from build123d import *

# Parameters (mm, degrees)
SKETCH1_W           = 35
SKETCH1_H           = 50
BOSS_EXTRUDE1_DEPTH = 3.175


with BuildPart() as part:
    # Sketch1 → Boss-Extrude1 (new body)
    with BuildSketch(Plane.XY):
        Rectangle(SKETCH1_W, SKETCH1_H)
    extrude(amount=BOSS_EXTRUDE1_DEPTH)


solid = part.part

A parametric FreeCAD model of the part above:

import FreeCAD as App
import Part
import Sketcher
from FreeCAD import Vector
Q = App.Units.Quantity

doc = App.newDocument("Part")
body = doc.addObject("PartDesign::Body", "Body")

# Sketch on XY plane
sketch1 = body.newObject("Sketcher::SketchObject", "Sketch")
sketch1.AttachmentSupport = (doc.getObject("XY_Plane"), [""])
sketch1.MapMode = "FlatFace"
sketch1.addGeometry([
    Part.LineSegment(Vector(-18, 25, 0), Vector(-18, -25, 0)),
    Part.LineSegment(Vector(-18, -25, 0), Vector(18, -25, 0)),
    Part.LineSegment(Vector(18, -25, 0), Vector(18, 25, 0)),
    Part.LineSegment(Vector(18, 25, 0), Vector(-18, 25, 0)),
], False)
sketch1.addConstraint([
    Sketcher.Constraint("Coincident", 0, 2, 1, 1),
    Sketcher.Constraint("Coincident", 1, 2, 2, 1),
    Sketcher.Constraint("Coincident", 2, 2, 3, 1),
    Sketcher.Constraint("Coincident", 3, 2, 0, 1),
    Sketcher.Constraint("Vertical", 0),
    Sketcher.Constraint("Horizontal", 1),
    Sketcher.Constraint("Vertical", 2),
    Sketcher.Constraint("Horizontal", 3),
    Sketcher.Constraint("Symmetric", 0, 2, 2, 2, -1, 1),
    Sketcher.Constraint("DistanceX", 1, 1, 1, 2, Q("35 mm")),
    Sketcher.Constraint("DistanceY", 0, 2, 0, 1, Q("50 mm")),
])
pad1 = body.newObject("PartDesign::Pad", "Pad")
pad1.Profile = sketch1
pad1.Length = 3.175

doc.recompute()
